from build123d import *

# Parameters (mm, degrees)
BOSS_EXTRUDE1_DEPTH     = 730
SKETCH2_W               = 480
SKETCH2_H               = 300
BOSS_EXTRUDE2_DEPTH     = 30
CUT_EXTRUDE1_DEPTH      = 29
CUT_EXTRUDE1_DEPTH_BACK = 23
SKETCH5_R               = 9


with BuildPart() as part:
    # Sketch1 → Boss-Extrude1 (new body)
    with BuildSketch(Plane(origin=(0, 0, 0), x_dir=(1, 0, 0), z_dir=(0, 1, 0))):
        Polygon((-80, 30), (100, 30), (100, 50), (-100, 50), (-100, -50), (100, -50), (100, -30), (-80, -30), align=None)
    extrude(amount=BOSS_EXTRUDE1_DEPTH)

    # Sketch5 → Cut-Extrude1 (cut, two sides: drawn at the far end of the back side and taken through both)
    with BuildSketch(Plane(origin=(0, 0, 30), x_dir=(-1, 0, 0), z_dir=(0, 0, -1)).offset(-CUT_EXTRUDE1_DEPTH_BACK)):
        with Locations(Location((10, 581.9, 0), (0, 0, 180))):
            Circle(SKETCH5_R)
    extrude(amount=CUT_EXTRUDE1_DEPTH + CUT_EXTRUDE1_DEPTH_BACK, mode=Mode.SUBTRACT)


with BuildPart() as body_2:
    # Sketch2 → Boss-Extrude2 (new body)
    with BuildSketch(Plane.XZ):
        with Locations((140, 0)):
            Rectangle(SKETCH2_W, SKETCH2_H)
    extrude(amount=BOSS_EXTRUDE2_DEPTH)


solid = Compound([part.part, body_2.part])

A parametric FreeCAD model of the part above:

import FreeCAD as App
import Part
import Sketcher
from FreeCAD import Vector

doc = App.newDocument("Part")
body = doc.addObject("PartDesign::Body", "Body")

sketch1 = body.newObject("Sketcher::SketchObject", "Sketch")
sketch1.AttachmentSupport = (doc.getObject("XZ_Plane"), [""])
sketch1.MapMode = "FlatFace"
sketch1.addGeometry(Part.LineSegment(Vector(-80, -30, 0), Vector(100, -30, 0)), False)
sketch1.addGeometry(Part.LineSegment(Vector(100, -30, 0), Vector(100, -50, 0)), False)
sketch1.addGeometry(Part.LineSegment(Vector(100, -50, 0), Vector(-100, -50, 0)), False)
sketch1.addGeometry(Part.LineSegment(Vector(-100, -50, 0), Vector(-100, 50, 0)), False)
sketch1.addGeometry(Part.LineSegment(Vector(-100, 50, 0), Vector(100, 50, 0)), False)
sketch1.addGeometry(Part.LineSegment(Vector(100, 50, 0), Vector(100, 30, 0)), False)
sketch1.addGeometry(Part.LineSegment(Vector(100, 30, 0), Vector(-80, 30, 0)), False)
sketch1.addGeometry(Part.LineSegment(Vector(-80, 30, 0), Vector(-80, -30, 0)), False)
sketch1.addConstraint(Sketcher.Constraint("Coincident", 0, 2, 1, 1))
sketch1.addConstraint(Sketcher.Constraint("Coincident", 1, 2, 2, 1))
sketch1.addConstraint(Sketcher.Constraint("Coincident", 2, 2, 3, 1))
sketch1.addConstraint(Sketcher.Constraint("Coincident", 3, 2, 4, 1))
sketch1.addConstraint(Sketcher.Constraint("Coincident", 4, 2, 5, 1))
sketch1.addConstraint(Sketcher.Constraint("Coincident", 5, 2, 6, 1))
sketch1.addConstraint(Sketcher.Constraint("Coincident", 6, 2, 7, 1))
sketch1.addConstraint(Sketcher.Constraint("Coincident", 7, 2, 0, 1))
sketch1.addConstraint(Sketcher.Constraint("Horizontal", 0))
sketch1.addConstraint(Sketcher.Constraint("Vertical", 1))
sketch1.addConstraint(Sketcher.Constraint("Horizontal", 2))
sketch1.addConstraint(Sketcher.Constraint("Vertical", 3))
sketch1.addConstraint(Sketcher.Constraint("Horizontal", 4))
sketch1.addConstraint(Sketcher.Constraint("Vertical", 5))
sketch1.addConstraint(Sketcher.Constraint("Horizontal", 6))
sketch1.addConstraint(Sketcher.Constraint("Vertical", 7))
sketch1.addConstraint(Sketcher.Constraint("Symmetric", 1, 2, 3, 2, -1, 1))
sketch1.addConstraint(Sketcher.Constraint("Symmetric", 0, 2, 5, 2, -1))
sketch1.addConstraint(Sketcher.Constraint("DistanceX", 0, 1, 0, 2, 180.0))
sketch1.addConstraint(Sketcher.Constraint("DistanceX", 2, 2, 2, 1, 200.0))
sketch1.addConstraint(Sketcher.Constraint("DistanceY", 1, 2, 1, 1, 20.0))
sketch1.addConstraint(Sketcher.Constraint("DistanceY", 3, 1, 3, 2, 100.0))
pad1 = body.newObject("PartDesign::Pad", "Pad")
pad1.Profile = sketch1
pad1.Length = 730
pad1.Reversed = True

sketch2 = body.newObject("Sketcher::SketchObject", "Sketch001")
sketch2.AttachmentSupport = (doc.getObject("XY_Plane"), [""])
sketch2.MapMode = "FlatFace"
sketch2.AttachmentOffset = App.Placement(Vector(0, 0, 30), App.Rotation())
sketch2.addGeometry(Part.Circle(Vector(-10, 581.9, 0), Vector(0, 0, 1), 9), False)
sketch2.addConstraint(Sketcher.Constraint("Diameter", 0, 18.0))
sketch2.addConstraint(Sketcher.Constraint("DistanceX", 0, 3, -1, 1, 10.0))
sketch2.addConstraint(Sketcher.Constraint("DistanceY", -1, 1, 0, 3, 581.9))
pocket1 = body.newObject("PartDesign::Pocket", "Pocket")
pocket1.Profile = sketch2
pocket1.Type = "TwoLengths"
pocket1.Length = 29
pocket1.Length2 = 23
body2 = doc.addObject("PartDesign::Body", "Body001")

sketch3 = body2.newObject("Sketcher::SketchObject", "Sketch002")
sketch3.AttachmentSupport = (doc.getObject("XZ_Plane001"), [""])
sketch3.MapMode = "FlatFace"
sketch3.addGeometry(Part.LineSegment(Vector(-100, 150, 0), Vector(-100, -150, 0)), False)
sketch3.addGeometry(Part.LineSegment(Vector(-100, -150, 0), Vector(380, -150, 0)), False)
sketch3.addGeometry(Part.LineSegment(Vector(380, -150, 0), Vector(380, 150, 0)), False)
sketch3.addGeometry(Part.LineSegment(Vector(380, 150, 0), Vector(-100, 150, 0)), False)
sketch3.addConstraint(Sketcher.Constraint("Coincident", 0, 2, 1, 1))
sketch3.addConstraint(Sketcher.Constraint("Coincident", 1, 2, 2, 1))
sketch3.addConstraint(Sketcher.Constraint("Coincident", 2, 2, 3, 1))
sketch3.addConstraint(Sketcher.Constraint("Coincident", 3, 2, 0, 1))
sketch3.addConstraint(Sketcher.Constraint("Vertical", 0))
sketch3.addConstraint(Sketcher.Constraint("Horizontal", 1))
sketch3.addConstraint(Sketcher.Constraint("Vertical", 2))
sketch3.addConstraint(Sketcher.Constraint("Horizontal", 3))
sketch3.addConstraint(Sketcher.Constraint("DistanceX", 1, 1, 1, 2, 480.0))
sketch3.addConstraint(Sketcher.Constraint("DistanceY", 0, 2, 0, 1, 300.0))
sketch3.addConstraint(Sketcher.Constraint("DistanceX", 0, 2, -1, 1, 100.0))
sketch3.addConstraint(Sketcher.Constraint("DistanceY", 0, 2, -1, 1, 150.0))
pad2 = body2.newObject("PartDesign::Pad", "Pad001")
pad2.Profile = sketch3
pad2.Length = 30

doc.recompute()
